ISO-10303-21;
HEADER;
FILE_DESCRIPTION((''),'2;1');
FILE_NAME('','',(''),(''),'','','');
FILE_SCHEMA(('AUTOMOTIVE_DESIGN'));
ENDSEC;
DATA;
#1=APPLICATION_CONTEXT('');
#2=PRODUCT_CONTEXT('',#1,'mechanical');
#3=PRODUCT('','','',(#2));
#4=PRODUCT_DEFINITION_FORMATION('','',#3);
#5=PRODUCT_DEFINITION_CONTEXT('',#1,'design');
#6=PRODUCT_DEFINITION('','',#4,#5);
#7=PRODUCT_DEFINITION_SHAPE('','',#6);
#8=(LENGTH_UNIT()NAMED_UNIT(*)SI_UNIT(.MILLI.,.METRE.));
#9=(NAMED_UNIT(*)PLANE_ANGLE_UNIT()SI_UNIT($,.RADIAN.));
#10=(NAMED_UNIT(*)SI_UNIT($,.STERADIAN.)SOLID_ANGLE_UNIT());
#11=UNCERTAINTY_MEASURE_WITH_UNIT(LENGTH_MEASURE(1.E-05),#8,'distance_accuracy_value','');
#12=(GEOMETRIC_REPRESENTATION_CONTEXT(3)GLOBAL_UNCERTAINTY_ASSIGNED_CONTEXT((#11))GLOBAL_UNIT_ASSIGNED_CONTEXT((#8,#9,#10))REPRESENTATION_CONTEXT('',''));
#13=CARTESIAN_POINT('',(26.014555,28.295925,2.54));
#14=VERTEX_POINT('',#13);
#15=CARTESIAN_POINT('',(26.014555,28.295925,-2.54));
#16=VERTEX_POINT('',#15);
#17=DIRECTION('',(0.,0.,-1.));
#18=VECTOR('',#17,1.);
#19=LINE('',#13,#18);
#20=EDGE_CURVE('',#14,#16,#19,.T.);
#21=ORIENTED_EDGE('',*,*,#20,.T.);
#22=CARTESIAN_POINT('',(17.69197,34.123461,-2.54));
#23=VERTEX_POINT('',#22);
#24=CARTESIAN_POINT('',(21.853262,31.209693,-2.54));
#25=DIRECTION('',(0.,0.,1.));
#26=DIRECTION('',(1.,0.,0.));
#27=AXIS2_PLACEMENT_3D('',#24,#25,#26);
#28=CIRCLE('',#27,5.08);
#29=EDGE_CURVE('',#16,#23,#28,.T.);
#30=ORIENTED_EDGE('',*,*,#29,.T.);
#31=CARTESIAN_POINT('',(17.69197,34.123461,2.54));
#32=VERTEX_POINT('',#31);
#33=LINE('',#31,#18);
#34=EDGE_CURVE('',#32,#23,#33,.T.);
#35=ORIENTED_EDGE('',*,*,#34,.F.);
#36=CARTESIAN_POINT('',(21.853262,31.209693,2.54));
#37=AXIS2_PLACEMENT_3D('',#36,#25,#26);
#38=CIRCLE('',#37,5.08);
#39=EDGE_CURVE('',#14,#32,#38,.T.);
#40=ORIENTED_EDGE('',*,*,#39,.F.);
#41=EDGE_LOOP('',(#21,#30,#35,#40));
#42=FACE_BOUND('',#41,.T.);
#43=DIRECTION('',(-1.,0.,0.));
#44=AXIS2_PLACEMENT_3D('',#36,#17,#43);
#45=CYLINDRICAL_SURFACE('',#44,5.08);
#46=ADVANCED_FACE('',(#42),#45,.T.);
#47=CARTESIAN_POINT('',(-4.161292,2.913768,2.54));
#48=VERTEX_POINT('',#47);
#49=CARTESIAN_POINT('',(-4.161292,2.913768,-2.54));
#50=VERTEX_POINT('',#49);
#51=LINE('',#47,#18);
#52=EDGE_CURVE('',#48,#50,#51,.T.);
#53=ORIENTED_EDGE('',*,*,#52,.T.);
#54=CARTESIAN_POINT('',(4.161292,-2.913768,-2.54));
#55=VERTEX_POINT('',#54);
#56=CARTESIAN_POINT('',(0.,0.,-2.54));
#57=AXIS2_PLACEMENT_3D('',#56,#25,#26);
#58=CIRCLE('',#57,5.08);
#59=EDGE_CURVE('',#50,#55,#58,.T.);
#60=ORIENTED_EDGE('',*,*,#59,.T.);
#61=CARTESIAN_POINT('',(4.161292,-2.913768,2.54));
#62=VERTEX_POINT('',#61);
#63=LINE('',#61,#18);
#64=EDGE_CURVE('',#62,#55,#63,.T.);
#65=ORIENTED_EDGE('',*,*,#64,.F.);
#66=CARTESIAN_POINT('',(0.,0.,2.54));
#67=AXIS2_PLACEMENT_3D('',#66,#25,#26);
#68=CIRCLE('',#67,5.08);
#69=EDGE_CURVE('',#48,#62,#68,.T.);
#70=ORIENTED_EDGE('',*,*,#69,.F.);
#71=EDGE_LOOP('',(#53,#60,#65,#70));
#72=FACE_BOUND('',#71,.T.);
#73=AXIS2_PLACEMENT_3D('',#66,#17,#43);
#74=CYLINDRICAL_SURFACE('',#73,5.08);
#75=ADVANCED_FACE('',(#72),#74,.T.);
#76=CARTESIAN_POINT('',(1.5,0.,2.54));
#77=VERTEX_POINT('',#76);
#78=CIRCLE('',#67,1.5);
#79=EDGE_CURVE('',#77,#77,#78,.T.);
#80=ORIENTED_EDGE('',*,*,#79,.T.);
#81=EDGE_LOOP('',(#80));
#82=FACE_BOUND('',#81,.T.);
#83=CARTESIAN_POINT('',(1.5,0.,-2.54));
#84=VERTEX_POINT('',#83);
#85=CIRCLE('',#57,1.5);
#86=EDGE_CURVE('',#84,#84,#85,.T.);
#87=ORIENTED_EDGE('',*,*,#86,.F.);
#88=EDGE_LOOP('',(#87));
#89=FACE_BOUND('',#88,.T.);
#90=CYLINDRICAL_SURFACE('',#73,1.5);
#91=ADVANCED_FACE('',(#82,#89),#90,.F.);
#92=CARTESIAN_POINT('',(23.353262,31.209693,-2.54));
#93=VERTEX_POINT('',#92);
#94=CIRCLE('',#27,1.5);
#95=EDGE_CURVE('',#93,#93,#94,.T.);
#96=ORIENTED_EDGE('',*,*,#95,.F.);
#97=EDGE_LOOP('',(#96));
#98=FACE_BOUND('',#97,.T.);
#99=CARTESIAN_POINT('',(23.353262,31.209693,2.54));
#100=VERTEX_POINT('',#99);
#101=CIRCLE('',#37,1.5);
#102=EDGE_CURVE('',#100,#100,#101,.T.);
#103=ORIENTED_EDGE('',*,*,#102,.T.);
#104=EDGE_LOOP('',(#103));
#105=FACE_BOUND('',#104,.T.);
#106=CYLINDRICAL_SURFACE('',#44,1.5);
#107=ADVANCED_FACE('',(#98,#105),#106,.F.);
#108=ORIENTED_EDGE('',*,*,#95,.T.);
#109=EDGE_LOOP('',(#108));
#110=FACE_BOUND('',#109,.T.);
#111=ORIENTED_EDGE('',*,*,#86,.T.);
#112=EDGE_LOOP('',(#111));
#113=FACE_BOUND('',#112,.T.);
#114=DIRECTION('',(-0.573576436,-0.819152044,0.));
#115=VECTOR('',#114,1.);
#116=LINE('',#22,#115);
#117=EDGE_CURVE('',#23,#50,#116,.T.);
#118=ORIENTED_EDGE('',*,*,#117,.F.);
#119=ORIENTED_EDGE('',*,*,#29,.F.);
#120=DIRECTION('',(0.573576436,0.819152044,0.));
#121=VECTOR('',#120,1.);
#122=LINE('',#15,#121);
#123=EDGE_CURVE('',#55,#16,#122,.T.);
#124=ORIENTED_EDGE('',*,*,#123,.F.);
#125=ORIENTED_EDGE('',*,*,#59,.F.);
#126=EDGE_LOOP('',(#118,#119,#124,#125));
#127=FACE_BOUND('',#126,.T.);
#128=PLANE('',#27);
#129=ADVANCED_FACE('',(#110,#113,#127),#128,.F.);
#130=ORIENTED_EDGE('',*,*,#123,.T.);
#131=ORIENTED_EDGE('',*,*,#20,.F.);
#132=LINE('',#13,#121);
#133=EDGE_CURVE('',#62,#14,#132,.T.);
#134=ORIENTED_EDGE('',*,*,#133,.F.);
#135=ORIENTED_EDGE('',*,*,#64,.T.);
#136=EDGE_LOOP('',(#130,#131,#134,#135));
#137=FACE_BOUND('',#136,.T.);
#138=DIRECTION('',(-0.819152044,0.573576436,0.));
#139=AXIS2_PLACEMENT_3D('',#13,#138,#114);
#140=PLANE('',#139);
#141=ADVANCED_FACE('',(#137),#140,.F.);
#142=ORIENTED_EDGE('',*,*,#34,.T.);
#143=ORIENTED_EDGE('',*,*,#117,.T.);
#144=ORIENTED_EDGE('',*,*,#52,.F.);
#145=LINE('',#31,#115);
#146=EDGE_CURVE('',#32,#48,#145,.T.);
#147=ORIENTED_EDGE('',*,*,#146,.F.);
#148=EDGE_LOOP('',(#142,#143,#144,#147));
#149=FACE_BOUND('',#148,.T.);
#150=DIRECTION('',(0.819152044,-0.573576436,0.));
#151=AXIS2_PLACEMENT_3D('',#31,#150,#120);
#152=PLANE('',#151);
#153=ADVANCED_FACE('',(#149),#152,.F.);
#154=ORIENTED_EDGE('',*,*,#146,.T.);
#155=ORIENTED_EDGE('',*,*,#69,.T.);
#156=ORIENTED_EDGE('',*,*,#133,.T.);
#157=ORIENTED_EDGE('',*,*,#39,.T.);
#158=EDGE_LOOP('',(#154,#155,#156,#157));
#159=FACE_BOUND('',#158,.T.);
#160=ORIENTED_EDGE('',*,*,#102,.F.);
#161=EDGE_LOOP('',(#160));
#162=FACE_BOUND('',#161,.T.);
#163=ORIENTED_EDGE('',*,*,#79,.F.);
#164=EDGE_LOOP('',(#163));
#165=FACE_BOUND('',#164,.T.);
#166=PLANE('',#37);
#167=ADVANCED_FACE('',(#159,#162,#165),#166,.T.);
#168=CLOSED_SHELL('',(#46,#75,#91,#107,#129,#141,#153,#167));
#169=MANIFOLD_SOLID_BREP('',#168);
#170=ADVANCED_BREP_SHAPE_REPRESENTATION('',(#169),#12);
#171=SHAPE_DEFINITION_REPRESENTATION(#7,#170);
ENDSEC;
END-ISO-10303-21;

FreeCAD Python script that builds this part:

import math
import FreeCAD as App
import Part
import Sketcher
Q = App.Units.Quantity

doc = App.newDocument("Part")
body = doc.addObject("PartDesign::Body", "Body")

# Sketch on XY plane
sketch1 = doc.addObject("Sketcher::SketchObject", "Sketch")
body.addObject(sketch1)
sketch1.AttachmentSupport = (doc.XY_Plane, [""])
sketch1.MapMode = "FlatFace"
sketch1.addGeometry([
    Part.LineSegment(App.Vector(4.2, -2.9, 0), App.Vector(26, 28.3, 0)),  # 0
    Part.ArcOfCircle(Part.Circle(App.Vector(21.9, 31.2, 0), App.Vector(0, 0, 1), 5.1), math.radians(-35), math.radians(145)),  # 1
    Part.LineSegment(App.Vector(17.7, 34.1, 0), App.Vector(-4.2, 2.9, 0)),  # 2
    Part.ArcOfCircle(Part.Circle(App.Vector(0, 0, 0), App.Vector(0, 0, 1), 5.1), math.radians(145), math.radians(325)),  # 3
    Part.Circle(App.Vector(0, 0, 0), App.Vector(0, 0, 1), 1.5),  # 4
    Part.Circle(App.Vector(21.9, 31.2, 0), App.Vector(0, 0, 1), 1.5),  # 5
], False)
sketch1.addConstraint([
    Sketcher.Constraint("Tangent", 0, 2, 1, 1),
    Sketcher.Constraint("Tangent", 1, 2, 2, 1),
    Sketcher.Constraint("Tangent", 2, 2, 3, 1),
    Sketcher.Constraint("Tangent", 3, 2, 0, 1),
    Sketcher.Constraint("Coincident", 3, 3, -1, 1),
    Sketcher.Constraint("Coincident", 4, 3, -1, 1),
    Sketcher.Constraint("Coincident", 5, 3, 1, 3),
    Sketcher.Constraint("Equal", 1, 3),
    Sketcher.Constraint("Equal", 4, 5),
    Sketcher.Constraint("Radius", 1, Q("0.2 in")),
    Sketcher.Constraint("Angle", 0, Q("55 deg")),
    Sketcher.Constraint("Distance", 0, Q("1.5 in")),
    Sketcher.Constraint("Diameter", 4, 3.0),
])
pad1 = doc.addObject("PartDesign::Pad", "Pad")
body.addObject(pad1)
pad1.Profile = sketch1
pad1.Length = Q("0.2 in")
pad1.Midplane = True

doc.recompute()
